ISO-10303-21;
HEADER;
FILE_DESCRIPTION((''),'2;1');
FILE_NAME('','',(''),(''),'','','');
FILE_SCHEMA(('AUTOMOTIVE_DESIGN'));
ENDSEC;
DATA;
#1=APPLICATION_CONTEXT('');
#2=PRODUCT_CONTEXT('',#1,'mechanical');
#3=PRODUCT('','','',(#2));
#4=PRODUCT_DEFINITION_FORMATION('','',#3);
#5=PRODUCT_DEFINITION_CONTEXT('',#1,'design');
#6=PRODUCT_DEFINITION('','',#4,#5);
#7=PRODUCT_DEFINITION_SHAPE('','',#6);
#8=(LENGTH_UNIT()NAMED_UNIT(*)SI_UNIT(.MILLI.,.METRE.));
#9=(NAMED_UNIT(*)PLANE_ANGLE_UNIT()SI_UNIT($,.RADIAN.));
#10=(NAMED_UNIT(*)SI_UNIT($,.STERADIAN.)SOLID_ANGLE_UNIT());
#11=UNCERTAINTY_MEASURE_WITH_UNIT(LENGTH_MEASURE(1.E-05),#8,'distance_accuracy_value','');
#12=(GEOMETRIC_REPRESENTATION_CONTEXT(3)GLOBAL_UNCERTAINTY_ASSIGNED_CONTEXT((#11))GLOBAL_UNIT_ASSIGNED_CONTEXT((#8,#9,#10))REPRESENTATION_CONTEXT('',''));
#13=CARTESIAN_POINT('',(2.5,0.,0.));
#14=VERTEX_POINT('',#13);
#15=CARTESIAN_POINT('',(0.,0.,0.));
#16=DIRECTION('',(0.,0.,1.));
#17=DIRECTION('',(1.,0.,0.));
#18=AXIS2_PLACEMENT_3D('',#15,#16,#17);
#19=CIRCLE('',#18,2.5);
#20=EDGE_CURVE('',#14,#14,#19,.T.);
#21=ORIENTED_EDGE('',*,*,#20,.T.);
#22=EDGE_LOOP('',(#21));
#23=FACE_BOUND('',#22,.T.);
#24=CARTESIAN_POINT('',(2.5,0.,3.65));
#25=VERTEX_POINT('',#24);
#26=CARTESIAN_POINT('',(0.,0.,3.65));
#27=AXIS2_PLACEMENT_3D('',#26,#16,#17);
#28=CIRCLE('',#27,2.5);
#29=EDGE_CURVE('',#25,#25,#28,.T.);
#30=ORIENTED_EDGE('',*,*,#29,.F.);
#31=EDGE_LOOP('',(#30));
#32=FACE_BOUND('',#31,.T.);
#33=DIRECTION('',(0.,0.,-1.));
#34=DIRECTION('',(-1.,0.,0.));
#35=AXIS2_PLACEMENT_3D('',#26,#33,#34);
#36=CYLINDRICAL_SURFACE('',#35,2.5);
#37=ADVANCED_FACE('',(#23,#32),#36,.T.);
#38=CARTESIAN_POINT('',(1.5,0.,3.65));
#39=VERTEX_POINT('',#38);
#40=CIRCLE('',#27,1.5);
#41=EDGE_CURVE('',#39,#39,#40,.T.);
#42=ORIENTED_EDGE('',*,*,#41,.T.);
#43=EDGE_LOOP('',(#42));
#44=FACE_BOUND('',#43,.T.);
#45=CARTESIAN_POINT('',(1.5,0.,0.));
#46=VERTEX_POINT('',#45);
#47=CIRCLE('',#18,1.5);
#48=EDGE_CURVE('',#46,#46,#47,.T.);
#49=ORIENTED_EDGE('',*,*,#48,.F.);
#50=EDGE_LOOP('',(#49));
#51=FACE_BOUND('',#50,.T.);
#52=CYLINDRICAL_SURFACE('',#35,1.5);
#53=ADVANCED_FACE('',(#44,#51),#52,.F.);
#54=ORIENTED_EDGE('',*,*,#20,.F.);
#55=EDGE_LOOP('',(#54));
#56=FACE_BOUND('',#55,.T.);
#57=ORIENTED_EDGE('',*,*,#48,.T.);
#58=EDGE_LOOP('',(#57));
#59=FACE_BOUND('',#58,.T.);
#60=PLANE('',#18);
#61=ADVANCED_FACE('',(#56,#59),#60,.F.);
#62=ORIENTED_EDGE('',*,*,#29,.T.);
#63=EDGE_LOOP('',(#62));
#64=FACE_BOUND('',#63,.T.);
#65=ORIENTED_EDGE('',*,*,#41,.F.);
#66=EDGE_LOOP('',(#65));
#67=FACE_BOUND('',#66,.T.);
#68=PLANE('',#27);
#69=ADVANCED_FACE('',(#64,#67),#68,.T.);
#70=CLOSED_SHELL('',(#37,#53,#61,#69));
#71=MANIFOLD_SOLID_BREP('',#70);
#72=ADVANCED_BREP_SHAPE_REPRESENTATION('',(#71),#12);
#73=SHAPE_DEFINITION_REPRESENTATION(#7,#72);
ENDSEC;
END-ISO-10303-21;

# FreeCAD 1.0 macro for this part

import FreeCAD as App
import Part
import Sketcher

doc = App.newDocument("Part")
body = doc.addObject("PartDesign::Body", "Body")

# Sketch on XY plane
sketch1 = doc.addObject("Sketcher::SketchObject", "Sketch")
body.addObject(sketch1)
sketch1.AttachmentSupport = (doc.XY_Plane, [""])
sketch1.MapMode = "FlatFace"
sketch1.addGeometry([
    Part.Circle(App.Vector(0, 0, 0), App.Vector(0, 0, 1), 2.5),
    Part.Circle(App.Vector(0, 0, 0), App.Vector(0, 0, 1), 1.5),
], False)
sketch1.addConstraint([
    Sketcher.Constraint("Coincident", 0, 3, -1, 1),
    Sketcher.Constraint("Coincident", 1, 3, -1, 1),
    Sketcher.Constraint("Diameter", 0, 5.0),
    Sketcher.Constraint("Diameter", 1, 3.0),
])
pad1 = doc.addObject("PartDesign::Pad", "Pad")
body.addObject(pad1)
pad1.Profile = sketch1
pad1.Length = 3.65

doc.recompute()
